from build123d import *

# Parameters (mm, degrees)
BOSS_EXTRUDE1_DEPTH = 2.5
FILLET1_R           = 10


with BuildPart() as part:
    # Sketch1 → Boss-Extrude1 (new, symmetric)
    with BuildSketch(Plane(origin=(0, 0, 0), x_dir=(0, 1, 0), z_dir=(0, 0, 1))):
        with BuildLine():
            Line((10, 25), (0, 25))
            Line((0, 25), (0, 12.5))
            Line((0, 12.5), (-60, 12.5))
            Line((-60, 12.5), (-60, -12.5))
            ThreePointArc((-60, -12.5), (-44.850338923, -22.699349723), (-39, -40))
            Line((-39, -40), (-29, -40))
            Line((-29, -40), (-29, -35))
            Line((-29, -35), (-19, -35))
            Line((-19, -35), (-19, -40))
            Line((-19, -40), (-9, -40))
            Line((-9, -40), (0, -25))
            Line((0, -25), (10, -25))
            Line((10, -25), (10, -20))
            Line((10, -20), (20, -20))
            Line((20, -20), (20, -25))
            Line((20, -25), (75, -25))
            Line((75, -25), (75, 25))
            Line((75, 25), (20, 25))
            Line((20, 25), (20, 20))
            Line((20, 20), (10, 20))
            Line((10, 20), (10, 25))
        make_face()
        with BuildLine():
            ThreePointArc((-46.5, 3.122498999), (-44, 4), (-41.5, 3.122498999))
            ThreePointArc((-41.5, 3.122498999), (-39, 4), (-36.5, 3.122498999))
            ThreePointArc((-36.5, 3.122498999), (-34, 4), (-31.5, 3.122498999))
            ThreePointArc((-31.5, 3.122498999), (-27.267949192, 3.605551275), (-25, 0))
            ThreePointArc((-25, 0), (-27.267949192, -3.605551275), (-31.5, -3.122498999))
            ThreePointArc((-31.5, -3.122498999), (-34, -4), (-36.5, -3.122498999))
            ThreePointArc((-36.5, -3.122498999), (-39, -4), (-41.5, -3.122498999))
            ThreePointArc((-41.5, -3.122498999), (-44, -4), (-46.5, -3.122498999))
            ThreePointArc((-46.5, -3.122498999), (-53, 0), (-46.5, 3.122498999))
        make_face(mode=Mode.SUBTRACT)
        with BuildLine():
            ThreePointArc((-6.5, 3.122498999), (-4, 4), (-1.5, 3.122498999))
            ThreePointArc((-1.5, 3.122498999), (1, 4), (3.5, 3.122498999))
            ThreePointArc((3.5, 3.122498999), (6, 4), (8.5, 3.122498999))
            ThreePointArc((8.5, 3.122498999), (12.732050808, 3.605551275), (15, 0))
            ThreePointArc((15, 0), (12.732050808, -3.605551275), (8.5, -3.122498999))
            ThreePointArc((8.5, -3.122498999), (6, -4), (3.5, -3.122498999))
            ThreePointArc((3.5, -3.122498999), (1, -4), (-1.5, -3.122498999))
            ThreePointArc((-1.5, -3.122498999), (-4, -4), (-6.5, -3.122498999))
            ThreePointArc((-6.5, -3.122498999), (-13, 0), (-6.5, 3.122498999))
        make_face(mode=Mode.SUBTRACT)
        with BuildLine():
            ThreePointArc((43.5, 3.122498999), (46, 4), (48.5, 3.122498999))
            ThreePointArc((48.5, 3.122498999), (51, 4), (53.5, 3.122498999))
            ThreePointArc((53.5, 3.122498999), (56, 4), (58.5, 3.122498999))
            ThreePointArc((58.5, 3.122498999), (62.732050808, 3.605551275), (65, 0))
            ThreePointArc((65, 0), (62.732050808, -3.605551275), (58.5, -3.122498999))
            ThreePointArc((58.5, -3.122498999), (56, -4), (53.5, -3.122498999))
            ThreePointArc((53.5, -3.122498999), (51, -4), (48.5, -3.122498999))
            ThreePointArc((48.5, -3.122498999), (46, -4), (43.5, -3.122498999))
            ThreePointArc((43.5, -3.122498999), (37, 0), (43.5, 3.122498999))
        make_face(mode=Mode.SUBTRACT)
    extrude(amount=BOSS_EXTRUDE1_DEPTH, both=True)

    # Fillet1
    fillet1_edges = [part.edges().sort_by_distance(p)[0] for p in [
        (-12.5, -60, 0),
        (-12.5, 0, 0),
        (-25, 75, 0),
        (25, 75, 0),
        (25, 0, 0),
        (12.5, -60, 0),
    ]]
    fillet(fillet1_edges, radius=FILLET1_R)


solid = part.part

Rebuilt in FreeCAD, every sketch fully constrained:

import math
import FreeCAD as App
import Part
import Sketcher

V = App.Vector
Q = App.Units.Quantity


def edges_at(feature, points):
    """Names of the edges that pass closest to the given points."""
    edges = feature.Shape.Edges
    near = lambda p: min(range(len(edges)), key=lambda i: edges[i].distToShape(Part.Vertex(*p))[0])
    return sorted({f"Edge{near(p) + 1}" for p in points})

doc = App.newDocument("Part")
body = doc.addObject("PartDesign::Body", "Body")

# Sketch on XY plane
sketch1 = body.newObject("Sketcher::SketchObject", "Sketch")
sketch1.AttachmentSupport = (doc.getObject("XY_Plane"), [""])
sketch1.MapMode = "FlatFace"
sketch1.addGeometry([
    Part.LineSegment(V(-25, 10, 0), V(-25, 0, 0)),  # 0
    Part.LineSegment(V(-25, 0, 0), V(-12.5, 0, 0)),  # 1
    Part.LineSegment(V(-12.5, 0, 0), V(-12.5, -60, 0)),  # 2
    Part.LineSegment(V(-12.5, -60, 0), V(12.5, -60, 0)),  # 3
    Part.ArcOfCircle(Part.Circle(V(40, -67.5, 0), V(0, 0, 1), 28.5), math.radians(90), math.radians(165)),  # 4
    Part.LineSegment(V(40, -39, 0), V(40, -29, 0)),  # 5
    Part.LineSegment(V(40, -29, 0), V(35, -29, 0)),  # 6
    Part.LineSegment(V(35, -29, 0), V(35, -19, 0)),  # 7
    Part.LineSegment(V(35, -19, 0), V(40, -19, 0)),  # 8
    Part.LineSegment(V(40, -19, 0), V(40, -9, 0)),  # 9
    Part.LineSegment(V(40, -9, 0), V(25, 0, 0)),  # 10
    Part.LineSegment(V(25, 0, 0), V(25, 10, 0)),  # 11
    Part.LineSegment(V(25, 10, 0), V(20, 10, 0)),  # 12
    Part.LineSegment(V(20, 10, 0), V(20, 20, 0)),  # 13
    Part.LineSegment(V(20, 20, 0), V(25, 20, 0)),  # 14
    Part.LineSegment(V(25, 20, 0), V(25, 75, 0)),  # 15
    Part.LineSegment(V(25, 75, 0), V(-25, 75, 0)),  # 16
    Part.LineSegment(V(-25, 75, 0), V(-25, 20, 0)),  # 17
    Part.LineSegment(V(-25, 20, 0), V(-20, 20, 0)),  # 18
    Part.LineSegment(V(-20, 20, 0), V(-20, 10, 0)),  # 19
    Part.LineSegment(V(-20, 10, 0), V(-25, 10, 0)),  # 20
    Part.ArcOfCircle(Part.Circle(V(0, -49, 0), V(0, 0, 1), 4), math.radians(141), math.radians(399)),  # 21
    Part.ArcOfCircle(Part.Circle(V(0, -44, 0), V(0, 0, 1), 4), math.radians(141), math.radians(219)),  # 22
    Part.ArcOfCircle(Part.Circle(V(0, -39, 0), V(0, 0, 1), 4), math.radians(141), math.radians(219)),  # 23
    Part.ArcOfCircle(Part.Circle(V(0, -34, 0), V(0, 0, 1), 4), math.radians(141), math.radians(219)),  # 24
    Part.ArcOfCircle(Part.Circle(V(0, -29, 0), V(0, 0, 1), 4), math.radians(90), math.radians(219)),  # 25
    Part.ArcOfCircle(Part.Circle(V(0, -29, 0), V(0, 0, 1), 4), math.radians(-39), math.radians(90)),  # 26
    Part.ArcOfCircle(Part.Circle(V(0, -34, 0), V(0, 0, 1), 4), math.radians(-39), math.radians(39)),  # 27
    Part.ArcOfCircle(Part.Circle(V(0, -39, 0), V(0, 0, 1), 4), math.radians(-39), math.radians(39)),  # 28
    Part.ArcOfCircle(Part.Circle(V(0, -44, 0), V(0, 0, 1), 4), math.radians(-39), math.radians(39)),  # 29
    Part.ArcOfCircle(Part.Circle(V(0, -9, 0), V(0, 0, 1), 4), math.radians(141), math.radians(399)),  # 30
    Part.ArcOfCircle(Part.Circle(V(0, -4, 0), V(0, 0, 1), 4), math.radians(141), math.radians(219)),  # 31
    Part.ArcOfCircle(Part.Circle(V(0, 1, 0), V(0, 0, 1), 4), math.radians(141), math.radians(219)),  # 32
    Part.ArcOfCircle(Part.Circle(V(0, 6, 0), V(0, 0, 1), 4), math.radians(141), math.radians(219)),  # 33
    Part.ArcOfCircle(Part.Circle(V(0, 11, 0), V(0, 0, 1), 4), math.radians(90), math.radians(219)),  # 34
    Part.ArcOfCircle(Part.Circle(V(0, 11, 0), V(0, 0, 1), 4), math.radians(-39), math.radians(90)),  # 35
    Part.ArcOfCircle(Part.Circle(V(0, 6, 0), V(0, 0, 1), 4), math.radians(-39), math.radians(39)),  # 36
    Part.ArcOfCircle(Part.Circle(V(0, 1, 0), V(0, 0, 1), 4), math.radians(-39), math.radians(39)),  # 37
    Part.ArcOfCircle(Part.Circle(V(0, -4, 0), V(0, 0, 1), 4), math.radians(-39), math.radians(39)),  # 38
    Part.ArcOfCircle(Part.Circle(V(0, 41, 0), V(0, 0, 1), 4), math.radians(141), math.radians(399)),  # 39
    Part.ArcOfCircle(Part.Circle(V(0, 46, 0), V(0, 0, 1), 4), math.radians(141), math.radians(219)),  # 40
    Part.ArcOfCircle(Part.Circle(V(0, 51, 0), V(0, 0, 1), 4), math.radians(141), math.radians(219)),  # 41
    Part.ArcOfCircle(Part.Circle(V(0, 56, 0), V(0, 0, 1), 4), math.radians(141), math.radians(219)),  # 42
    Part.ArcOfCircle(Part.Circle(V(0, 61, 0), V(0, 0, 1), 4), math.radians(90), math.radians(219)),  # 43
    Part.ArcOfCircle(Part.Circle(V(0, 61, 0), V(0, 0, 1), 4), math.radians(-39), math.radians(90)),  # 44
    Part.ArcOfCircle(Part.Circle(V(0, 56, 0), V(0, 0, 1), 4), math.radians(-39), math.radians(39)),  # 45
    Part.ArcOfCircle(Part.Circle(V(0, 51, 0), V(0, 0, 1), 4), math.radians(-39), math.radians(39)),  # 46
    Part.ArcOfCircle(Part.Circle(V(0, 46, 0), V(0, 0, 1), 4), math.radians(-39), math.radians(39)),  # 47
], False)
sketch1.addConstraint([
    Sketcher.Constraint("Coincident", 0, 2, 1, 1),
    Sketcher.Constraint("Coincident", 1, 2, 2, 1),
    Sketcher.Constraint("Coincident", 2, 2, 3, 1),
    Sketcher.Constraint("Coincident", 3, 2, 4, 2),
    Sketcher.Constraint("Coincident", 4, 1, 5, 1),
    Sketcher.Constraint("Coincident", 5, 2, 6, 1),
    Sketcher.Constraint("Coincident", 6, 2, 7, 1),
    Sketcher.Constraint("Coincident", 7, 2, 8, 1),
    Sketcher.Constraint("Coincident", 8, 2, 9, 1),
    Sketcher.Constraint("Coincident", 9, 2, 10, 1),
    Sketcher.Constraint("Coincident", 10, 2, 11, 1),
    Sketcher.Constraint("Coincident", 11, 2, 12, 1),
    Sketcher.Constraint("Coincident", 12, 2, 13, 1),
    Sketcher.Constraint("Coincident", 13, 2, 14, 1),
    Sketcher.Constraint("Coincident", 14, 2, 15, 1),
    Sketcher.Constraint("Coincident", 15, 2, 16, 1),
    Sketcher.Constraint("Coincident", 16, 2, 17, 1),
    Sketcher.Constraint("Coincident", 17, 2, 18, 1),
    Sketcher.Constraint("Coincident", 18, 2, 19, 1),
    Sketcher.Constraint("Coincident", 19, 2, 20, 1),
    Sketcher.Constraint("Coincident", 20, 2, 0, 1),
    Sketcher.Constraint("Coincident", 21, 1, 22, 2),
    Sketcher.Constraint("Coincident", 22, 1, 23, 2),
    Sketcher.Constraint("Coincident", 23, 1, 24, 2),
    Sketcher.Constraint("Coincident", 24, 1, 25, 2),
    Sketcher.Constraint("Tangent", 25, 1, 26, 2),
    Sketcher.Constraint("Coincident", 26, 1, 27, 2),
    Sketcher.Constraint("Coincident", 27, 1, 28, 2),
    Sketcher.Constraint("Coincident", 28, 1, 29, 2),
    Sketcher.Constraint("Coincident", 29, 1, 21, 2),
    Sketcher.Constraint("Coincident", 30, 1, 31, 2),
    Sketcher.Constraint("Coincident", 31, 1, 32, 2),
    Sketcher.Constraint("Coincident", 32, 1, 33, 2),
    Sketcher.Constraint("Coincident", 33, 1, 34, 2),
    Sketcher.Constraint("Tangent", 34, 1, 35, 2),
    Sketcher.Constraint("Coincident", 35, 1, 36, 2),
    Sketcher.Constraint("Coincident", 36, 1, 37, 2),
    Sketcher.Constraint("Coincident", 37, 1, 38, 2),
    Sketcher.Constraint("Coincident", 38, 1, 30, 2),
    Sketcher.Constraint("Coincident", 39, 1, 40, 2),
    Sketcher.Constraint("Coincident", 40, 1, 41, 2),
    Sketcher.Constraint("Coincident", 41, 1, 42, 2),
    Sketcher.Constraint("Coincident", 42, 1, 43, 2),
    Sketcher.Constraint("Tangent", 43, 1, 44, 2),
    Sketcher.Constraint("Coincident", 44, 1, 45, 2),
    Sketcher.Constraint("Coincident", 45, 1, 46, 2),
    Sketcher.Constraint("Coincident", 46, 1, 47, 2),
    Sketcher.Constraint("Coincident", 47, 1, 39, 2),
    Sketcher.Constraint("Vertical", 0),
    Sketcher.Constraint("Horizontal", 1),
    Sketcher.Constraint("Vertical", 2),
    Sketcher.Constraint("Horizontal", 3),
    Sketcher.Constraint("Vertical", 5),
    Sketcher.Constraint("Horizontal", 6),
    Sketcher.Constraint("Vertical", 7),
    Sketcher.Constraint("Horizontal", 8),
    Sketcher.Constraint("Vertical", 9),
    Sketcher.Constraint("Vertical", 11),
    Sketcher.Constraint("Horizontal", 12),
    Sketcher.Constraint("Vertical", 13),
    Sketcher.Constraint("Horizontal", 14),
    Sketcher.Constraint("Vertical", 15),
    Sketcher.Constraint("Horizontal", 16),
    Sketcher.Constraint("Vertical", 17),
    Sketcher.Constraint("Horizontal", 18),
    Sketcher.Constraint("Vertical", 19),
    Sketcher.Constraint("Horizontal", 20),
    Sketcher.Constraint("Coincident", 27, 3, 24, 3),
    Sketcher.Constraint("Coincident", 28, 3, 23, 3),
    Sketcher.Constraint("Coincident", 29, 3, 22, 3),
    Sketcher.Constraint("Coincident", 36, 3, 33, 3),
    Sketcher.Constraint("Coincident", 37, 3, 32, 3),
    Sketcher.Constraint("Coincident", 38, 3, 31, 3),
    Sketcher.Constraint("Coincident", 45, 3, 42, 3),
    Sketcher.Constraint("Coincident", 46, 3, 41, 3),
    Sketcher.Constraint("Coincident", 47, 3, 40, 3),
    Sketcher.Constraint("Equal", 21, 22),
    Sketcher.Constraint("Equal", 22, 23),
    Sketcher.Constraint("Equal", 23, 24),
    Sketcher.Constraint("Equal", 24, 25),
    Sketcher.Constraint("Equal", 25, 26),
    Sketcher.Constraint("Equal", 26, 27),
    Sketcher.Constraint("Equal", 27, 28),
    Sketcher.Constraint("Equal", 28, 29),
    Sketcher.Constraint("Equal", 29, 30),
    Sketcher.Constraint("Equal", 30, 31),
    Sketcher.Constraint("Equal", 31, 32),
    Sketcher.Constraint("Equal", 32, 33),
    Sketcher.Constraint("Equal", 33, 34),
    Sketcher.Constraint("Equal", 34, 35),
    Sketcher.Constraint("Equal", 35, 36),
    Sketcher.Constraint("Equal", 36, 37),
    Sketcher.Constraint("Equal", 37, 38),
    Sketcher.Constraint("Equal", 38, 39),
    Sketcher.Constraint("Equal", 39, 40),
    Sketcher.Constraint("Equal", 40, 41),
    Sketcher.Constraint("Equal", 41, 42),
    Sketcher.Constraint("Equal", 42, 43),
    Sketcher.Constraint("Equal", 43, 44),
    Sketcher.Constraint("Equal", 44, 45),
    Sketcher.Constraint("Equal", 45, 46),
    Sketcher.Constraint("Equal", 46, 47),
    Sketcher.Constraint("Symmetric", 0, 2, 10, 2, -1, 1),
    Sketcher.Constraint("Symmetric", 14, 2, 17, 2, -2),
    Sketcher.Constraint("Symmetric", 12, 2, 19, 2, -2),
    Sketcher.Constraint("Symmetric", 24, 1, 26, 1, -2),
    Sketcher.Constraint("Symmetric", 22, 1, 28, 1, -2),
    Sketcher.Constraint("Symmetric", 33, 1, 35, 1, -2),
    Sketcher.Constraint("Symmetric", 31, 1, 37, 1, -2),
    Sketcher.Constraint("Symmetric", 42, 1, 44, 1, -2),
    Sketcher.Constraint("Symmetric", 40, 1, 46, 1, -2),
    Sketcher.Constraint("PointOnObject", 21, 3, -2),
    Sketcher.Constraint("PointOnObject", 30, 3, -2),
    Sketcher.Constraint("PointOnObject", 39, 3, -2),
    Sketcher.Constraint("PointOnObject", 0, 2, -1),
    Sketcher.Constraint("PointOnObject", 25, 1, -2),
    Sketcher.Constraint("PointOnObject", 34, 1, -2),
    Sketcher.Constraint("PointOnObject", 43, 1, -2),
    Sketcher.Constraint("Horizontal", 28, 3, 4, 1),
    Sketcher.Constraint("Horizontal", 26, 3, 5, 2),
    Sketcher.Constraint("Horizontal", 30, 3, 9, 2),
    Sketcher.Constraint("Vertical", 5, 2, 8, 2),
    Sketcher.Constraint("Vertical", 11, 2, 14, 2),
    Sketcher.Constraint("Vertical", 21, 1, 22, 1),
    Sketcher.Constraint("Vertical", 22, 1, 23, 1),
    Sketcher.Constraint("Vertical", 23, 1, 24, 1),
    Sketcher.Constraint("Vertical", 24, 1, 30, 1),
    Sketcher.Constraint("Vertical", 30, 1, 31, 1),
    Sketcher.Constraint("Vertical", 31, 1, 32, 1),
    Sketcher.Constraint("Vertical", 32, 1, 33, 1),
    Sketcher.Constraint("Vertical", 33, 1, 39, 1),
    Sketcher.Constraint("Vertical", 39, 1, 40, 1),
    Sketcher.Constraint("Vertical", 40, 1, 41, 1),
    Sketcher.Constraint("Vertical", 41, 1, 42, 1),
    Sketcher.Constraint("Equal", 8, 12),
    Sketcher.Constraint("Equal", 0, 5),
    Sketcher.Constraint("Equal", 5, 7),
    Sketcher.Constraint("Equal", 7, 9),
    Sketcher.Constraint("Equal", 11, 13),
    Sketcher.Constraint("Radius", 21, Q("4 mm")),
    Sketcher.Constraint("DistanceX", 3, 1, 3, 2, Q("25 mm")),
    Sketcher.Constraint("DistanceX", 6, 2, 6, 1, Q("5 mm")),
    Sketcher.Constraint("DistanceX", 16, 2, 16, 1, Q("50 mm")),
    Sketcher.Constraint("DistanceY", 0, 2, 0, 1, Q("10 mm")),
    Sketcher.Constraint("DistanceY", 2, 2, 2, 1, Q("60 mm")),
    Sketcher.Constraint("DistanceY", 15, 1, 15, 2, Q("55 mm")),
    Sketcher.Constraint("DistanceX", 1, 1, 1, 2, Q("12.5 mm")),
    Sketcher.Constraint("DistanceX", -1, 1, 4, 3, Q("40 mm")),
    Sketcher.Constraint("DistanceY", 21, 3, -1, 1, Q("49 mm")),
    Sketcher.Constraint("DistanceY", -1, 1, 39, 3, Q("41 mm")),
    Sketcher.Constraint("DistanceX", -1, 1, 4, 1, Q("40 mm")),
])
pad1 = body.newObject("PartDesign::Pad", "Pad")
pad1.Profile = sketch1
pad1.Length = 5
pad1.Midplane = True
doc.recompute()

fillet = body.newObject("PartDesign::Fillet", "Fillet")
fillet.Base = (pad1, edges_at(pad1, [
    (-12.5, -60, 0),
    (-12.5, 0, 0),
    (-25, 75, 0),
    (25, 75, 0),
    (25, 0, 0),
    (12.5, -60, 0),
]))
fillet.Radius = 10

doc.recompute()
